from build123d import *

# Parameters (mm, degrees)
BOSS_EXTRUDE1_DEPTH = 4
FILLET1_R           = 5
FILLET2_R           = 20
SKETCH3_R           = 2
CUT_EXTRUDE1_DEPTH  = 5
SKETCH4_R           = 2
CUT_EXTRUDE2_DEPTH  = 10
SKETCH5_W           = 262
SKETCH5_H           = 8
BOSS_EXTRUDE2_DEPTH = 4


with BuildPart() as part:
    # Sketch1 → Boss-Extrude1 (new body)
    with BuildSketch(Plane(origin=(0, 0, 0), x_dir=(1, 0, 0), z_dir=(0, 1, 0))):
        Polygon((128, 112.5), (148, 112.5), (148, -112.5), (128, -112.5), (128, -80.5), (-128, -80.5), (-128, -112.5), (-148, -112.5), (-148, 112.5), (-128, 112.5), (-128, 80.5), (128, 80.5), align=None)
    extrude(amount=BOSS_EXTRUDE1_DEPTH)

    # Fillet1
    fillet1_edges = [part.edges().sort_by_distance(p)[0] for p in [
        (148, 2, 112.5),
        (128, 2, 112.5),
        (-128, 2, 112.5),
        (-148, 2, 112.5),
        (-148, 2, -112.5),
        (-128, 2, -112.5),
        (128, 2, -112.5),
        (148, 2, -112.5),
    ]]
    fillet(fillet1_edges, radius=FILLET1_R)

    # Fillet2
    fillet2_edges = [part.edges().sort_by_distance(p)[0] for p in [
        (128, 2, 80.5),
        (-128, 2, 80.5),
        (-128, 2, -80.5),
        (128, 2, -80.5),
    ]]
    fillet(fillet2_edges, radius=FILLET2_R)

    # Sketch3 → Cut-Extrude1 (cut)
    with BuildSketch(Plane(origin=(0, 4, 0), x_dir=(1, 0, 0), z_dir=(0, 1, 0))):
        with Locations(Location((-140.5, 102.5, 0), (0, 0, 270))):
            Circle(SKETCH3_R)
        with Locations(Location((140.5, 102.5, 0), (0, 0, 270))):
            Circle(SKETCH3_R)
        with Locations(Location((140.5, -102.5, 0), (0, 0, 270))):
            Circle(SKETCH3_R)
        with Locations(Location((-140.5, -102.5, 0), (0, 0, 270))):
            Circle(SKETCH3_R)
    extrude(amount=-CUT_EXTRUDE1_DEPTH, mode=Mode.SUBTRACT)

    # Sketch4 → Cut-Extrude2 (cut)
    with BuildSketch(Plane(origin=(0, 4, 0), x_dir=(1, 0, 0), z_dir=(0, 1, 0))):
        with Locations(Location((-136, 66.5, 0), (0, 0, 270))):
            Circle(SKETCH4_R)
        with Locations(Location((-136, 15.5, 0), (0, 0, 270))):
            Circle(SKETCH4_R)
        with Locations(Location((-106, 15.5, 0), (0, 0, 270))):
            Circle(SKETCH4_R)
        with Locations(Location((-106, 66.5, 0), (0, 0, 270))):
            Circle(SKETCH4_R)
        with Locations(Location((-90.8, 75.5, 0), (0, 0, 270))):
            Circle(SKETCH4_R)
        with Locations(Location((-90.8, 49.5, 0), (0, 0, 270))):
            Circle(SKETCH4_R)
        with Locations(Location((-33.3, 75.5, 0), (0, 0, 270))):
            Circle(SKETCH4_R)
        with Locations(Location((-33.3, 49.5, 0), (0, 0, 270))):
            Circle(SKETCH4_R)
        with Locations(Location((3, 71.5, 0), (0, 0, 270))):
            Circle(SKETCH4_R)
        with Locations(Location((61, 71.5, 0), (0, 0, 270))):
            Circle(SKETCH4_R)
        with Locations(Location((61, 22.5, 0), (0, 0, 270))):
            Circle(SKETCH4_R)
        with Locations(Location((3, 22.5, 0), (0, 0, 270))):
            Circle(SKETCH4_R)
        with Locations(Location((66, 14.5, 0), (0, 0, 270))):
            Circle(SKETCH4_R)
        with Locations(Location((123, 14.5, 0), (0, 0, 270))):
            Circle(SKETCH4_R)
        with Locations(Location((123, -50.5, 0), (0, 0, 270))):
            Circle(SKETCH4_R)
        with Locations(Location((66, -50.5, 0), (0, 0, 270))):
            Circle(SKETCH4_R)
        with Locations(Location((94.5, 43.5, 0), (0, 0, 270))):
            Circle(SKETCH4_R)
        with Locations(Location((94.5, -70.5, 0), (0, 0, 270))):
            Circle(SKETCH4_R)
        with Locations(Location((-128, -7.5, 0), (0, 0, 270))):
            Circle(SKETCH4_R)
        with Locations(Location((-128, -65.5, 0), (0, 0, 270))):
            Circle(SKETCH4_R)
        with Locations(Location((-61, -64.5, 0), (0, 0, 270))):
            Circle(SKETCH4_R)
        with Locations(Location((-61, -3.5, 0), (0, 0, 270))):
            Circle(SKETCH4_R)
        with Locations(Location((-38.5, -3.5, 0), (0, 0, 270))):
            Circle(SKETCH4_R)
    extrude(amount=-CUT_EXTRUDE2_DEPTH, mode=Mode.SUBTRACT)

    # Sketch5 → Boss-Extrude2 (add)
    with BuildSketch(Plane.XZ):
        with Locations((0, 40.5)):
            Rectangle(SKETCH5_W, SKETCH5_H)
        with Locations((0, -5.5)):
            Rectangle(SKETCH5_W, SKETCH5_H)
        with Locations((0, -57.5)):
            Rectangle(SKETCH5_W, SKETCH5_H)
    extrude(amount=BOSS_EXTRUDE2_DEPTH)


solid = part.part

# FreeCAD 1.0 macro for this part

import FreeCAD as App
import Part
import Sketcher
Q = App.Units.Quantity


def edges_at(feature, points):
    """Names of the edges that pass closest to the given points."""
    edges = feature.Shape.Edges
    near = lambda p: min(range(len(edges)), key=lambda i: edges[i].distToShape(Part.Vertex(*p))[0])
    return sorted({f"Edge{near(p) + 1}" for p in points})

doc = App.newDocument("Part")
body = doc.addObject("PartDesign::Body", "Body")

# Sketch on XZ plane
sketch1 = doc.addObject("Sketcher::SketchObject", "Sketch")
body.addObject(sketch1)
sketch1.AttachmentSupport = (doc.XZ_Plane, [""])
sketch1.MapMode = "FlatFace"
sketch1.addGeometry([
    Part.LineSegment(App.Vector(148, -112, 0), App.Vector(128, -112, 0)),  # 0
    Part.LineSegment(App.Vector(128, -112, 0), App.Vector(128, -80, 0)),  # 1
    Part.LineSegment(App.Vector(128, -80, 0), App.Vector(-128, -80, 0)),  # 2
    Part.LineSegment(App.Vector(-128, -80, 0), App.Vector(-128, -112, 0)),  # 3
    Part.LineSegment(App.Vector(-128, -112, 0), App.Vector(-148, -112, 0)),  # 4
    Part.LineSegment(App.Vector(-148, -112, 0), App.Vector(-148, 112, 0)),  # 5
    Part.LineSegment(App.Vector(-148, 112, 0), App.Vector(-128, 112, 0)),  # 6
    Part.LineSegment(App.Vector(-128, 112, 0), App.Vector(-128, 80, 0)),  # 7
    Part.LineSegment(App.Vector(-128, 80, 0), App.Vector(128, 80, 0)),  # 8
    Part.LineSegment(App.Vector(128, 80, 0), App.Vector(128, 112, 0)),  # 9
    Part.LineSegment(App.Vector(128, 112, 0), App.Vector(148, 112, 0)),  # 10
    Part.LineSegment(App.Vector(148, 112, 0), App.Vector(148, -112, 0)),  # 11
], False)
sketch1.addConstraint([
    Sketcher.Constraint("Coincident", 0, 2, 1, 1),
    Sketcher.Constraint("Coincident", 1, 2, 2, 1),
    Sketcher.Constraint("Coincident", 2, 2, 3, 1),
    Sketcher.Constraint("Coincident", 3, 2, 4, 1),
    Sketcher.Constraint("Coincident", 4, 2, 5, 1),
    Sketcher.Constraint("Coincident", 5, 2, 6, 1),
    Sketcher.Constraint("Coincident", 6, 2, 7, 1),
    Sketcher.Constraint("Coincident", 7, 2, 8, 1),
    Sketcher.Constraint("Coincident", 8, 2, 9, 1),
    Sketcher.Constraint("Coincident", 9, 2, 10, 1),
    Sketcher.Constraint("Coincident", 10, 2, 11, 1),
    Sketcher.Constraint("Coincident", 11, 2, 0, 1),
    Sketcher.Constraint("Horizontal", 0),
    Sketcher.Constraint("Vertical", 1),
    Sketcher.Constraint("Horizontal", 2),
    Sketcher.Constraint("Vertical", 3),
    Sketcher.Constraint("Horizontal", 4),
    Sketcher.Constraint("Vertical", 5),
    Sketcher.Constraint("Horizontal", 6),
    Sketcher.Constraint("Vertical", 7),
    Sketcher.Constraint("Horizontal", 8),
    Sketcher.Constraint("Vertical", 9),
    Sketcher.Constraint("Horizontal", 10),
    Sketcher.Constraint("Vertical", 11),
    Sketcher.Constraint("Symmetric", 0, 2, 6, 2, -1, 1),
    Sketcher.Constraint("Symmetric", 2, 2, 8, 2, -1, 1),
    Sketcher.Constraint("Symmetric", 4, 2, 10, 2, -1, 1),
    Sketcher.Constraint("Symmetric", 0, 2, 3, 2, -2),
    Sketcher.Constraint("DistanceX", 0, 2, 0, 1, Q("20 mm")),
    Sketcher.Constraint("DistanceX", 2, 2, 2, 1, Q("256 mm")),
    Sketcher.Constraint("DistanceY", 1, 1, 1, 2, Q("32 mm")),
    Sketcher.Constraint("DistanceY", 5, 1, 5, 2, Q("225 mm")),
])
pad1 = doc.addObject("PartDesign::Pad", "Pad")
body.addObject(pad1)
pad1.Profile = sketch1
pad1.Length = 4
pad1.Reversed = True
doc.recompute()

fillet = doc.addObject("PartDesign::Fillet", "Fillet")
body.addObject(fillet)
fillet.Base = (pad1, edges_at(pad1, [
    (148, 2, 112.5),
    (128, 2, 112.5),
    (-128, 2, 112.5),
    (-148, 2, 112.5),
    (-148, 2, -112.5),
    (-128, 2, -112.5),
    (128, 2, -112.5),
    (148, 2, -112.5),
]))
fillet.Radius = 5
doc.recompute()

fillet2 = doc.addObject("PartDesign::Fillet", "Fillet001")
body.addObject(fillet2)
fillet2.Base = (fillet, edges_at(fillet, [
    (128, 2, 80.5),
    (-128, 2, 80.5),
    (-128, 2, -80.5),
    (128, 2, -80.5),
]))
fillet2.Radius = 20

# Sketch on XZ plane
sketch2 = doc.addObject("Sketcher::SketchObject", "Sketch001")
body.addObject(sketch2)
sketch2.AttachmentSupport = (doc.XZ_Plane, [""])
sketch2.MapMode = "FlatFace"
sketch2.AttachmentOffset = App.Placement(App.Vector(0, 0, -4), App.Rotation())
sketch2.addGeometry([
    Part.Circle(App.Vector(-140.5, -102.5, 0), App.Vector(0, 0, 1), 2),
    Part.Circle(App.Vector(140.5, -102.5, 0), App.Vector(0, 0, 1), 2),
    Part.Circle(App.Vector(140.5, 102.5, 0), App.Vector(0, 0, 1), 2),
    Part.Circle(App.Vector(-140.5, 102.5, 0), App.Vector(0, 0, 1), 2),
], False)
sketch2.addConstraint([
    Sketcher.Constraint("Equal", 0, 1),
    Sketcher.Constraint("Equal", 1, 2),
    Sketcher.Constraint("Equal", 2, 3),
    Sketcher.Constraint("Symmetric", 0, 3, 2, 3, -1, 1),
    Sketcher.Constraint("Symmetric", 1, 3, 3, 3, -1, 1),
    Sketcher.Constraint("Symmetric", 0, 3, 1, 3, -2),
    Sketcher.Constraint("Diameter", 0, Q("4 mm")),
    Sketcher.Constraint("DistanceX", 0, 3, 1, 3, Q("281 mm")),
    Sketcher.Constraint("DistanceY", 1, 3, 2, 3, Q("205 mm")),
])
pocket1 = doc.addObject("PartDesign::Pocket", "Pocket")
body.addObject(pocket1)
pocket1.Profile = sketch2
pocket1.Length = 5
pocket1.Reversed = True

# Sketch on XZ plane
sketch3 = doc.addObject("Sketcher::SketchObject", "Sketch002")
body.addObject(sketch3)
sketch3.AttachmentSupport = (doc.XZ_Plane, [""])
sketch3.MapMode = "FlatFace"
sketch3.AttachmentOffset = App.Placement(App.Vector(0, 0, -4), App.Rotation())
sketch3.addGeometry([
    Part.Circle(App.Vector(-136, -66.5, 0), App.Vector(0, 0, 1), 2),  # 0
    Part.Circle(App.Vector(-136, -15.5, 0), App.Vector(0, 0, 1), 2),  # 1
    Part.Circle(App.Vector(-106, -15.5, 0), App.Vector(0, 0, 1), 2),  # 2
    Part.Circle(App.Vector(-106, -66.5, 0), App.Vector(0, 0, 1), 2),  # 3
    Part.Circle(App.Vector(-90.8, -75.5, 0), App.Vector(0, 0, 1), 2),  # 4
    Part.Circle(App.Vector(-90.8, -49.5, 0), App.Vector(0, 0, 1), 2),  # 5
    Part.Circle(App.Vector(-33.3, -75.5, 0), App.Vector(0, 0, 1), 2),  # 6
    Part.Circle(App.Vector(-33.3, -49.5, 0), App.Vector(0, 0, 1), 2),  # 7
    Part.Circle(App.Vector(3, -71.5, 0), App.Vector(0, 0, 1), 2),  # 8
    Part.Circle(App.Vector(61, -71.5, 0), App.Vector(0, 0, 1), 2),  # 9
    Part.Circle(App.Vector(61, -22.5, 0), App.Vector(0, 0, 1), 2),  # 10
    Part.Circle(App.Vector(3, -22.5, 0), App.Vector(0, 0, 1), 2),  # 11
    Part.Circle(App.Vector(66, -14.5, 0), App.Vector(0, 0, 1), 2),  # 12
    Part.Circle(App.Vector(123, -14.5, 0), App.Vector(0, 0, 1), 2),  # 13
    Part.Circle(App.Vector(123, 50.5, 0), App.Vector(0, 0, 1), 2),  # 14
    Part.Circle(App.Vector(66, 50.5, 0), App.Vector(0, 0, 1), 2),  # 15
    Part.Circle(App.Vector(94.5, -43.5, 0), App.Vector(0, 0, 1), 2),  # 16
    Part.Circle(App.Vector(94.5, 70.5, 0), App.Vector(0, 0, 1), 2),  # 17
    Part.Circle(App.Vector(-128, 7.5, 0), App.Vector(0, 0, 1), 2),  # 18
    Part.Circle(App.Vector(-128, 65.5, 0), App.Vector(0, 0, 1), 2),  # 19
    Part.Circle(App.Vector(-61, 64.5, 0), App.Vector(0, 0, 1), 2),  # 20
    Part.Circle(App.Vector(-61, 3.5, 0), App.Vector(0, 0, 1), 2),  # 21
    Part.Circle(App.Vector(-38.5, 3.5, 0), App.Vector(0, 0, 1), 2),  # 22
], False)
sketch3.addConstraint([
    Sketcher.Constraint("Equal", 0, 1),
    Sketcher.Constraint("Equal", 1, 2),
    Sketcher.Constraint("Equal", 2, 3),
    Sketcher.Constraint("Equal", 3, 4),
    Sketcher.Constraint("Equal", 4, 5),
    Sketcher.Constraint("Equal", 5, 6),
    Sketcher.Constraint("Equal", 6, 7),
    Sketcher.Constraint("Equal", 7, 8),
    Sketcher.Constraint("Equal", 8, 9),
    Sketcher.Constraint("Equal", 9, 10),
    Sketcher.Constraint("Equal", 10, 11),
    Sketcher.Constraint("Equal", 11, 12),
    Sketcher.Constraint("Equal", 12, 13),
    Sketcher.Constraint("Equal", 13, 14),
    Sketcher.Constraint("Equal", 14, 15),
    Sketcher.Constraint("Equal", 15, 16),
    Sketcher.Constraint("Equal", 16, 17),
    Sketcher.Constraint("Equal", 17, 18),
    Sketcher.Constraint("Equal", 18, 19),
    Sketcher.Constraint("Equal", 19, 20),
    Sketcher.Constraint("Equal", 20, 21),
    Sketcher.Constraint("Equal", 21, 22),
    Sketcher.Constraint("Horizontal", 1, 3, 2, 3),
    Sketcher.Constraint("Horizontal", 0, 3, 3, 3),
    Sketcher.Constraint("Horizontal", 4, 3, 6, 3),
    Sketcher.Constraint("Horizontal", 5, 3, 7, 3),
    Sketcher.Constraint("Horizontal", 8, 3, 9, 3),
    Sketcher.Constraint("Horizontal", 10, 3, 11, 3),
    Sketcher.Constraint("Horizontal", 12, 3, 13, 3),
    Sketcher.Constraint("Horizontal", 14, 3, 15, 3),
    Sketcher.Constraint("Horizontal", 21, 3, 22, 3),
    Sketcher.Constraint("Vertical", 0, 3, 1, 3),
    Sketcher.Constraint("Vertical", 2, 3, 3, 3),
    Sketcher.Constraint("Vertical", 4, 3, 5, 3),
    Sketcher.Constraint("Vertical", 6, 3, 7, 3),
    Sketcher.Constraint("Vertical", 9, 3, 10, 3),
    Sketcher.Constraint("Vertical", 8, 3, 11, 3),
    Sketcher.Constraint("Vertical", 13, 3, 14, 3),
    Sketcher.Constraint("Vertical", 12, 3, 15, 3),
    Sketcher.Constraint("Vertical", 16, 3, 17, 3),
    Sketcher.Constraint("Vertical", 18, 3, 19, 3),
    Sketcher.Constraint("Vertical", 20, 3, 21, 3),
    Sketcher.Constraint("Diameter", 0, Q("4 mm")),
    Sketcher.Constraint("DistanceX", 0, 3, -1, 1, Q("136 mm")),
    Sketcher.Constraint("DistanceX", 2, 3, -1, 1, Q("106 mm")),
    Sketcher.Constraint("DistanceX", -1, 1, 8, 3, Q("3 mm")),
    Sketcher.Constraint("DistanceX", -1, 1, 9, 3, Q("61 mm")),
    Sketcher.Constraint("DistanceX", -1, 1, 12, 3, Q("66 mm")),
    Sketcher.Constraint("DistanceX", -1, 1, 13, 3, Q("123 mm")),
    Sketcher.Constraint("DistanceX", 18, 3, -1, 1, Q("128 mm")),
    Sketcher.Constraint("DistanceX", 20, 3, -1, 1, Q("61 mm")),
    Sketcher.Constraint("DistanceY", 0, 3, 1, 3, Q("51 mm")),
    Sketcher.Constraint("DistanceY", 4, 3, 3, 3, Q("9 mm")),
    Sketcher.Constraint("DistanceY", 3, 3, 5, 3, Q("17 mm")),
    Sketcher.Constraint("DistanceY", 6, 3, 8, 3, Q("4 mm")),
    Sketcher.Constraint("DistanceY", 9, 3, 10, 3, Q("49 mm")),
    Sketcher.Constraint("DistanceY", 10, 3, 12, 3, Q("8 mm")),
    Sketcher.Constraint("DistanceY", 13, 3, 14, 3, Q("65 mm")),
    Sketcher.Constraint("DistanceY", 16, 3, 10, 3, Q("21 mm")),
    Sketcher.Constraint("DistanceY", 14, 3, 17, 3, Q("20 mm")),
    Sketcher.Constraint("DistanceY", 1, 3, 18, 3, Q("23 mm")),
    Sketcher.Constraint("DistanceY", 18, 3, 19, 3, Q("58 mm")),
    Sketcher.Constraint("DistanceY", 20, 3, 19, 3, Q("1 mm")),
    Sketcher.Constraint("DistanceY", 2, 3, 21, 3, Q("19 mm")),
    Sketcher.Constraint("DistanceY", 0, 3, -1, 1, Q("66.5 mm")),
    Sketcher.Constraint("DistanceX", 4, 3, -1, 1, Q("90.8 mm")),
    Sketcher.Constraint("DistanceX", 6, 3, -1, 1, Q("33.3 mm")),
    Sketcher.Constraint("DistanceX", -1, 1, 16, 3, Q("94.5 mm")),
    Sketcher.Constraint("DistanceX", 22, 3, -1, 1, Q("38.5 mm")),
])
pocket2 = doc.addObject("PartDesign::Pocket", "Pocket001")
body.addObject(pocket2)
pocket2.Profile = sketch3
pocket2.Length = 10
pocket2.Reversed = True

# Sketch on XZ plane
sketch4 = doc.addObject("Sketcher::SketchObject", "Sketch003")
body.addObject(sketch4)
sketch4.AttachmentSupport = (doc.XZ_Plane, [""])
sketch4.MapMode = "FlatFace"
sketch4.addGeometry([
    Part.LineSegment(App.Vector(-131, 44, 0), App.Vector(-131, 36, 0)),  # 0
    Part.LineSegment(App.Vector(-131, 36, 0), App.Vector(131, 36, 0)),  # 1
    Part.LineSegment(App.Vector(131, 36, 0), App.Vector(131, 44, 0)),  # 2
    Part.LineSegment(App.Vector(131, 44, 0), App.Vector(-131, 44, 0)),  # 3
    Part.LineSegment(App.Vector(-131, -2, 0), App.Vector(-131, -10, 0)),  # 4
    Part.LineSegment(App.Vector(-131, -10, 0), App.Vector(131, -10, 0)),  # 5
    Part.LineSegment(App.Vector(131, -10, 0), App.Vector(131, -2, 0)),  # 6
    Part.LineSegment(App.Vector(131, -2, 0), App.Vector(-131, -2, 0)),  # 7
    Part.LineSegment(App.Vector(-131, -54, 0), App.Vector(-131, -62, 0)),  # 8
    Part.LineSegment(App.Vector(-131, -62, 0), App.Vector(131, -62, 0)),  # 9
    Part.LineSegment(App.Vector(131, -62, 0), App.Vector(131, -54, 0)),  # 10
    Part.LineSegment(App.Vector(131, -54, 0), App.Vector(-131, -54, 0)),  # 11
], False)
sketch4.addConstraint([
    Sketcher.Constraint("Coincident", 0, 2, 1, 1),
    Sketcher.Constraint("Coincident", 1, 2, 2, 1),
    Sketcher.Constraint("Coincident", 2, 2, 3, 1),
    Sketcher.Constraint("Coincident", 3, 2, 0, 1),
    Sketcher.Constraint("Coincident", 4, 2, 5, 1),
    Sketcher.Constraint("Coincident", 5, 2, 6, 1),
    Sketcher.Constraint("Coincident", 6, 2, 7, 1),
    Sketcher.Constraint("Coincident", 7, 2, 4, 1),
    Sketcher.Constraint("Coincident", 8, 2, 9, 1),
    Sketcher.Constraint("Coincident", 9, 2, 10, 1),
    Sketcher.Constraint("Coincident", 10, 2, 11, 1),
    Sketcher.Constraint("Coincident", 11, 2, 8, 1),
    Sketcher.Constraint("Vertical", 0),
    Sketcher.Constraint("Horizontal", 1),
    Sketcher.Constraint("Vertical", 2),
    Sketcher.Constraint("Horizontal", 3),
    Sketcher.Constraint("Vertical", 4),
    Sketcher.Constraint("Horizontal", 5),
    Sketcher.Constraint("Vertical", 6),
    Sketcher.Constraint("Horizontal", 7),
    Sketcher.Constraint("Vertical", 8),
    Sketcher.Constraint("Horizontal", 9),
    Sketcher.Constraint("Vertical", 10),
    Sketcher.Constraint("Horizontal", 11),
    Sketcher.Constraint("Vertical", 3, 2, 4, 2),
    Sketcher.Constraint("Vertical", 2, 2, 5, 2),
    Sketcher.Constraint("Vertical", 7, 2, 8, 2),
    Sketcher.Constraint("Vertical", 6, 2, 9, 2),
    Sketcher.Constraint("Equal", 2, 4),
    Sketcher.Constraint("Equal", 6, 8),
    Sketcher.Constraint("DistanceX", 1, 1, 1, 2, Q("262 mm")),
    Sketcher.Constraint("DistanceY", 0, 2, 0, 1, Q("8 mm")),
    Sketcher.Constraint("DistanceX", 0, 2, -1, 1, Q("131 mm")),
    Sketcher.Constraint("DistanceY", 4, 2, 0, 2, Q("46 mm")),
    Sketcher.Constraint("DistanceY", 8, 2, 4, 2, Q("52 mm")),
    Sketcher.Constraint("DistanceY", -1, 1, 0, 2, Q("36.5 mm")),
])
pad2 = doc.addObject("PartDesign::Pad", "Pad001")
body.addObject(pad2)
pad2.Profile = sketch4
pad2.Length = 4

doc.recompute()
